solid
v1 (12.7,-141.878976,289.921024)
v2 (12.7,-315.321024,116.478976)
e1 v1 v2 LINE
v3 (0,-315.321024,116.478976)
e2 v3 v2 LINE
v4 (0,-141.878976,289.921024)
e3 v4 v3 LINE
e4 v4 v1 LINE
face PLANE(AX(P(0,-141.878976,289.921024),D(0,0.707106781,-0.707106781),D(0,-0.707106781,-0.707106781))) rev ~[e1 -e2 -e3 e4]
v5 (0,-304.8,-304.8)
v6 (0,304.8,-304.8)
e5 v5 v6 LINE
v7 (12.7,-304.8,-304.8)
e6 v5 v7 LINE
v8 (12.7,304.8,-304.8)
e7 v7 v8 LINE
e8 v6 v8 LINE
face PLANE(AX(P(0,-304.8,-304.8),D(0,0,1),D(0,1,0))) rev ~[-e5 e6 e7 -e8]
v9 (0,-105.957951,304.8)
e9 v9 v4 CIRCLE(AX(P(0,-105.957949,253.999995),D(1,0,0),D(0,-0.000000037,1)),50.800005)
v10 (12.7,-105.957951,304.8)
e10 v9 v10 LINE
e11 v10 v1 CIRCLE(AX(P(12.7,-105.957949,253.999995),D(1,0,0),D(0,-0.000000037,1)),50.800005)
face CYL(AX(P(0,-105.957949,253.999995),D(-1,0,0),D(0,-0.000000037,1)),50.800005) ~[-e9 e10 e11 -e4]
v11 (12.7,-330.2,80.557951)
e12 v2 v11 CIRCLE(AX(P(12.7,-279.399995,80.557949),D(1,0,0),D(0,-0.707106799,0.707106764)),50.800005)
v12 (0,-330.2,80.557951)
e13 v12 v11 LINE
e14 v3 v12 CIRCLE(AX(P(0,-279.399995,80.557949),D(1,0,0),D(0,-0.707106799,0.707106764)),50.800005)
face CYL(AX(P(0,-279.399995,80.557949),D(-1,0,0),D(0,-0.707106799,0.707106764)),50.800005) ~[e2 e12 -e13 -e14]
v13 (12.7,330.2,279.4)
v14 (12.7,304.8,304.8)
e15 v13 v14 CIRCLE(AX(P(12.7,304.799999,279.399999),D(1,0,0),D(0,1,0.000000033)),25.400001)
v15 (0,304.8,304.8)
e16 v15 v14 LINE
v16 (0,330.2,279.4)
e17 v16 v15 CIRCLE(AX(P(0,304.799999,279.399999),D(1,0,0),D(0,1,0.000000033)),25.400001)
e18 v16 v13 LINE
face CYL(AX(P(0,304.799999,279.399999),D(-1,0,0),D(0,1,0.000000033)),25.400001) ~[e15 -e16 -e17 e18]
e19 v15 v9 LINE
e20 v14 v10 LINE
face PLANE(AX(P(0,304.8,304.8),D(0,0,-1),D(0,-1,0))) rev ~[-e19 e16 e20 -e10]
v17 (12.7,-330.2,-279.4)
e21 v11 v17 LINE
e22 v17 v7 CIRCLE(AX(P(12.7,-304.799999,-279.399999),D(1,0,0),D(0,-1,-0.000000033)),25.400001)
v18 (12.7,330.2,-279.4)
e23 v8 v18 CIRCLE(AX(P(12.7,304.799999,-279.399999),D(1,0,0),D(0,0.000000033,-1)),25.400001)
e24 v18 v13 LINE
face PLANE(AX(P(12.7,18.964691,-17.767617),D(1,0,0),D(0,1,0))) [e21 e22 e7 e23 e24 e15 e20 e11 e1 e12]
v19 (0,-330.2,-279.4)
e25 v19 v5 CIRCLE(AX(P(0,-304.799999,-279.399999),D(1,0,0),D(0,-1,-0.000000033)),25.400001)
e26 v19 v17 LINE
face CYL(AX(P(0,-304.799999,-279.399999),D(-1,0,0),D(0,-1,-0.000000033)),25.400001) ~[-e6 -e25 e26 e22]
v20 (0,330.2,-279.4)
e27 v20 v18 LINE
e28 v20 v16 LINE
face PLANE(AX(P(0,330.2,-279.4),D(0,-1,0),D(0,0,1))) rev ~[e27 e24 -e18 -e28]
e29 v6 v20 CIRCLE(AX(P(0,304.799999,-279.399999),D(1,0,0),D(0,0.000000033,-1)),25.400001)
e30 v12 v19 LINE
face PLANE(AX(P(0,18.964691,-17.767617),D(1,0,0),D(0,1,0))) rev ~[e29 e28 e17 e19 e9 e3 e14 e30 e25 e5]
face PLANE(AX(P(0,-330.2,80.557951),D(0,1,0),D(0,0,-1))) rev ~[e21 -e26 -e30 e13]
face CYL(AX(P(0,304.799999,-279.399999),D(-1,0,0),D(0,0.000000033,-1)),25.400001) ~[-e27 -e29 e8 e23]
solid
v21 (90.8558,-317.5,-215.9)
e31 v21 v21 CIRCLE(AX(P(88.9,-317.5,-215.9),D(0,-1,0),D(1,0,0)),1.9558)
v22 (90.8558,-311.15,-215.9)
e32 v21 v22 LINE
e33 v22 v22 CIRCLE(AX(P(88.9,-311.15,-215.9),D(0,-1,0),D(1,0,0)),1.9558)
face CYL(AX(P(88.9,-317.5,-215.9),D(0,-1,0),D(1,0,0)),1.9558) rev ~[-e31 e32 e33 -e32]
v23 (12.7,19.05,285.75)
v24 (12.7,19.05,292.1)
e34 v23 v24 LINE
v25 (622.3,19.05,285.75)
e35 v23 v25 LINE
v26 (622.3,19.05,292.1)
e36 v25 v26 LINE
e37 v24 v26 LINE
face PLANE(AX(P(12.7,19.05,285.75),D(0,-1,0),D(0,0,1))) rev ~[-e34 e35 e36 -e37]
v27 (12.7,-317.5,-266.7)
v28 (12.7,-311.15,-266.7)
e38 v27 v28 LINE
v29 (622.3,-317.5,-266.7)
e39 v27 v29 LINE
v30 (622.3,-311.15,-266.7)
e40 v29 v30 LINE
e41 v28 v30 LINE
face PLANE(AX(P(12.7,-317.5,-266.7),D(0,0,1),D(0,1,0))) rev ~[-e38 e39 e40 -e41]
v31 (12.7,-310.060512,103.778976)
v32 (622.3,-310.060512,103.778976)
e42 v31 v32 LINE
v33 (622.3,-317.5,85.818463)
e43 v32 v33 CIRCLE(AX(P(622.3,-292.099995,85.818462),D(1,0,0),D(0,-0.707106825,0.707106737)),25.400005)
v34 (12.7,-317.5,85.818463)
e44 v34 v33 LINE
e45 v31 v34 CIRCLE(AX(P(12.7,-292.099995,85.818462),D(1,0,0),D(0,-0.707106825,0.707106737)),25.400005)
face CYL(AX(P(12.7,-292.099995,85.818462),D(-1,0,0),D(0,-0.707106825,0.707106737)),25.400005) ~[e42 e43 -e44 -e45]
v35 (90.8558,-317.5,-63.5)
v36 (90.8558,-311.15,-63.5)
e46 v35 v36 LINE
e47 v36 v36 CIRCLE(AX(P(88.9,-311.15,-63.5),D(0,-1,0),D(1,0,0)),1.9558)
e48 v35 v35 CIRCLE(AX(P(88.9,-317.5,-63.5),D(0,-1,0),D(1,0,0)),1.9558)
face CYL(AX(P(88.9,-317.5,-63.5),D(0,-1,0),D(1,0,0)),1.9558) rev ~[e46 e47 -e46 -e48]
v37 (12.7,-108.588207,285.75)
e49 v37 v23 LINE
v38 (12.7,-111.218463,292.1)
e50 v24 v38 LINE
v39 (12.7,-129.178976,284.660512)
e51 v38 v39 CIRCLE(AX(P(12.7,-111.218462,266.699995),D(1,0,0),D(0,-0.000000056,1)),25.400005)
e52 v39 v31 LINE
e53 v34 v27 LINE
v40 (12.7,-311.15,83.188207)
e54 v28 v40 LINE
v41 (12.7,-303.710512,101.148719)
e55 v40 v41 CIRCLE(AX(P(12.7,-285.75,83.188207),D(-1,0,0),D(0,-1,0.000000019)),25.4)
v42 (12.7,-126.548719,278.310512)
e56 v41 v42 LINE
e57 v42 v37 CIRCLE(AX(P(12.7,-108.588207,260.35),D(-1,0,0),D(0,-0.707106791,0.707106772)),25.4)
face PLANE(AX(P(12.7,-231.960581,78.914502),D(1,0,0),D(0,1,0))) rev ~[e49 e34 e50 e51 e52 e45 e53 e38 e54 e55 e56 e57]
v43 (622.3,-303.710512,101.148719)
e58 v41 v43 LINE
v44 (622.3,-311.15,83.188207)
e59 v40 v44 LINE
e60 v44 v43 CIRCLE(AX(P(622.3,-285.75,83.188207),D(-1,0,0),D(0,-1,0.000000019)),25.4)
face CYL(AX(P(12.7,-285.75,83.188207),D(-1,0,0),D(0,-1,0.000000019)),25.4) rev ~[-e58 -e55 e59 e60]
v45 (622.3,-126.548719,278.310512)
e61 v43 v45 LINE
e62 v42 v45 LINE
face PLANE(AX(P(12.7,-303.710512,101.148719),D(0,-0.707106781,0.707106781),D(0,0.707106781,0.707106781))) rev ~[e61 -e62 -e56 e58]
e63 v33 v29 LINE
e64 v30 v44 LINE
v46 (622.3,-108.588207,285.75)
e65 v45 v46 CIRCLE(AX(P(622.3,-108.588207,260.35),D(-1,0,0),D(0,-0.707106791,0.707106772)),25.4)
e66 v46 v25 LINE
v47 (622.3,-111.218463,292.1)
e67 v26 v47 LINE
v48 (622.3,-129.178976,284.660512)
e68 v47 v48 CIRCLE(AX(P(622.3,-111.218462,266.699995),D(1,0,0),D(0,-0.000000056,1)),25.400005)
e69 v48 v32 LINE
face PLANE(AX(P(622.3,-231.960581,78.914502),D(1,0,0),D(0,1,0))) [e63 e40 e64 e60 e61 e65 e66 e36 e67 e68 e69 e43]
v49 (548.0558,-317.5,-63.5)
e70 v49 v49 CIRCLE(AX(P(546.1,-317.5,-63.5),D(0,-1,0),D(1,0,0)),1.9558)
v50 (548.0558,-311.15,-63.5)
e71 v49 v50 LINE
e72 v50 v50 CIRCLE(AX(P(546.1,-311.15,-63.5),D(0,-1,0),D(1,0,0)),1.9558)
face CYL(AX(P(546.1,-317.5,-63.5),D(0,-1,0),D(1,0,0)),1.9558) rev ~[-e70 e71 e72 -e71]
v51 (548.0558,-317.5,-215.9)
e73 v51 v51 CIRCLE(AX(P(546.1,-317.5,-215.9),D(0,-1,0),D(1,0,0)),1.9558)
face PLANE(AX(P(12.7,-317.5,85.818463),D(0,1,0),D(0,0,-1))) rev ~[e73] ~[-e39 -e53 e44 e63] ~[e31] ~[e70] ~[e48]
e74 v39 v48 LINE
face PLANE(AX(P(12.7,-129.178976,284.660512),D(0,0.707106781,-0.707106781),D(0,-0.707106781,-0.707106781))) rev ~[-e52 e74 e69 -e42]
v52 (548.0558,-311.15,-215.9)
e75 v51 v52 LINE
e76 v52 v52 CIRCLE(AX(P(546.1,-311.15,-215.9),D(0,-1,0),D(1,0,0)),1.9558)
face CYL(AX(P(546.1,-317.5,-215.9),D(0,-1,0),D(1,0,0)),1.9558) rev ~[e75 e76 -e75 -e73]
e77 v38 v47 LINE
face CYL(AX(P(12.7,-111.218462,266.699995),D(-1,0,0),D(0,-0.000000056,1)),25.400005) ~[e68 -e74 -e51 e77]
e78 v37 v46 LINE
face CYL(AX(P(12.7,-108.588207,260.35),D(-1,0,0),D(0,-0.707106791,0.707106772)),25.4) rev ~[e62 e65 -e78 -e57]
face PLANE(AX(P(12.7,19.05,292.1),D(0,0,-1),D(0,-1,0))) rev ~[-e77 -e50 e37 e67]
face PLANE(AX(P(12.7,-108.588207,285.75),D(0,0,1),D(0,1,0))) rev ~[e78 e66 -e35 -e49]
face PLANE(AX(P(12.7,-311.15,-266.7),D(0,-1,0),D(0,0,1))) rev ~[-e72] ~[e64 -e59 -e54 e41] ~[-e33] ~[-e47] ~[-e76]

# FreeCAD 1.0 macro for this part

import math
import FreeCAD as App
import Part
import Sketcher
Q = App.Units.Quantity

doc = App.newDocument("Part")
params = doc.addObject("Spreadsheet::Sheet", "Params")
for row, (alias, value) in enumerate([
    ("sketch1_radius", "1 in"),
    ("sketch1_radius2", "2.0000002 in"),
    ("sketch1_width", "24 in"),
    ("sketch1_height", "22 in"),
    ("pad1_length", "0.5 in"),
    ("sketch2_radius", "1.0000002 in"),
    ("sketch2_radius2", "1 in"),
    ("sketch2_width", "0.25 in"),
    ("pad2_length", "24 in"),
    ("sketch3_diameter", "0.154 in"),
], start=1):
    params.set(f"A{row}", alias)
    params.set(f"B{row}", "=" + value)
    params.setAlias(f"B{row}", alias)

body = doc.addObject("PartDesign::Body", "Body")

# Sketch on YZ plane
sketch1 = body.newObject("Sketcher::SketchObject", "Sketch")
sketch1.AttachmentSupport = (doc.getObject("YZ_Plane"), [""])
sketch1.MapMode = "FlatFace"
sketch1.addGeometry(Part.ArcOfCircle(Part.Circle(App.Vector(305, 279, 0), App.Vector(0, 0, 1), 25), math.radians(0), math.radians(90)), False)
sketch1.addGeometry(Part.LineSegment(App.Vector(305, 305, 0), App.Vector(-106, 305, 0)), False)
sketch1.addGeometry(Part.ArcOfCircle(Part.Circle(App.Vector(-106, 254, 0), App.Vector(0, 0, 1), 51), math.radians(90), math.radians(135)), False)
sketch1.addGeometry(Part.LineSegment(App.Vector(-142, 290, 0), App.Vector(-315, 116, 0)), False)
sketch1.addGeometry(Part.ArcOfCircle(Part.Circle(App.Vector(-279, 81, 0), App.Vector(0, 0, 1), 51), math.radians(135), math.radians(180)), False)
sketch1.addGeometry(Part.LineSegment(App.Vector(-330, 81, 0), App.Vector(-330, -279, 0)), False)
sketch1.addGeometry(Part.ArcOfCircle(Part.Circle(App.Vector(-305, -279, 0), App.Vector(0, 0, 1), 25), math.radians(-180), math.radians(-90)), False)
sketch1.addGeometry(Part.LineSegment(App.Vector(-305, -305, 0), App.Vector(305, -305, 0)), False)
sketch1.addGeometry(Part.ArcOfCircle(Part.Circle(App.Vector(305, -279, 0), App.Vector(0, 0, 1), 25), math.radians(-90), math.radians(0)), False)
sketch1.addGeometry(Part.LineSegment(App.Vector(330, -279, 0), App.Vector(330, 279, 0)), False)
sketch1.addConstraint(Sketcher.Constraint("Tangent", 0, 2, 1, 1))
sketch1.addConstraint(Sketcher.Constraint("Tangent", 1, 2, 2, 1))
sketch1.addConstraint(Sketcher.Constraint("Tangent", 2, 2, 3, 1))
sketch1.addConstraint(Sketcher.Constraint("Tangent", 3, 2, 4, 1))
sketch1.addConstraint(Sketcher.Constraint("Tangent", 4, 2, 5, 1))
sketch1.addConstraint(Sketcher.Constraint("Tangent", 5, 2, 6, 1))
sketch1.addConstraint(Sketcher.Constraint("Tangent", 6, 2, 7, 1))
sketch1.addConstraint(Sketcher.Constraint("Tangent", 7, 2, 8, 1))
sketch1.addConstraint(Sketcher.Constraint("Tangent", 8, 2, 9, 1))
sketch1.addConstraint(Sketcher.Constraint("Tangent", 9, 2, 0, 1))
sketch1.addConstraint(Sketcher.Constraint("Horizontal", 1))
sketch1.addConstraint(Sketcher.Constraint("Vertical", 5))
sketch1.addConstraint(Sketcher.Constraint("Horizontal", 7))
sketch1.addConstraint(Sketcher.Constraint("Vertical", 9))
sketch1.addConstraint(Sketcher.Constraint("Equal", 2, 4))
sketch1.addConstraint(Sketcher.Constraint("Equal", 0, 6))
sketch1.addConstraint(Sketcher.Constraint("Equal", 6, 8))
sketch1.addConstraint(Sketcher.Constraint("Symmetric", 0, 3, 6, 3, -1, 1))
sketch1.addConstraint(Sketcher.Constraint("Radius", 0, Q("1 in")))
sketch1.addConstraint(Sketcher.Constraint("Radius", 2, Q("2.0000002 in")))
sketch1.addConstraint(Sketcher.Constraint("DistanceX", 7, 1, 7, 2, Q("24 in")))
sketch1.addConstraint(Sketcher.Constraint("DistanceY", 9, 1, 9, 2, Q("22 in")))
sketch1.addConstraint(Sketcher.Constraint("Angle", 3, Q("-135 deg")))
sketch1.addConstraint(Sketcher.Constraint("DistanceX", 1, 2, 1, 1, 410.757951))
sketch1.setExpression("Constraints[18]", "Params.sketch1_radius")
sketch1.setExpression("Constraints[19]", "Params.sketch1_radius2")
sketch1.setExpression("Constraints[20]", "Params.sketch1_width")
sketch1.setExpression("Constraints[21]", "Params.sketch1_height")
pad1 = body.newObject("PartDesign::Pad", "Pad")
pad1.Profile = sketch1
pad1.setExpression("Length", "Params.pad1_length")
body2 = doc.addObject("PartDesign::Body", "Body001")

# Sketch on YZ plane
sketch2 = body2.newObject("Sketcher::SketchObject", "Sketch001")
sketch2.AttachmentSupport = (doc.getObject("YZ_Plane001"), [""])
sketch2.MapMode = "FlatFace"
sketch2.AttachmentOffset = App.Placement(App.Vector(0, 0, 0.5 * 25.4), App.Rotation())
sketch2.addGeometry(Part.ArcOfCircle(Part.Circle(App.Vector(-292, 86, 0), App.Vector(0, 0, 1), 25), math.radians(135), math.radians(180)), False)
sketch2.addGeometry(Part.LineSegment(App.Vector(-318, 86, 0), App.Vector(-318, -267, 0)), False)
sketch2.addGeometry(Part.LineSegment(App.Vector(-318, -267, 0), App.Vector(-311, -267, 0)), False)
sketch2.addGeometry(Part.LineSegment(App.Vector(-311, -267, 0), App.Vector(-311, 83, 0)), False)
sketch2.addGeometry(Part.ArcOfCircle(Part.Circle(App.Vector(-286, 83, 0), App.Vector(0, 0, 1), 25), math.radians(135), math.radians(180)), False)
sketch2.addGeometry(Part.LineSegment(App.Vector(-304, 101, 0), App.Vector(-127, 278, 0)), False)
sketch2.addGeometry(Part.ArcOfCircle(Part.Circle(App.Vector(-109, 260, 0), App.Vector(0, 0, 1), 25), math.radians(90), math.radians(135)), False)
sketch2.addGeometry(Part.LineSegment(App.Vector(-109, 286, 0), App.Vector(19, 286, 0)), False)
sketch2.addGeometry(Part.LineSegment(App.Vector(19, 286, 0), App.Vector(19, 292, 0)), False)
sketch2.addGeometry(Part.LineSegment(App.Vector(19, 292, 0), App.Vector(-111, 292, 0)), False)
sketch2.addGeometry(Part.ArcOfCircle(Part.Circle(App.Vector(-111, 267, 0), App.Vector(0, 0, 1), 25), math.radians(90), math.radians(135)), False)
sketch2.addGeometry(Part.LineSegment(App.Vector(-129, 285, 0), App.Vector(-310, 104, 0)), False)
sketch2.addConstraint(Sketcher.Constraint("Tangent", 0, 2, 1, 1))
sketch2.addConstraint(Sketcher.Constraint("Coincident", 1, 2, 2, 1))
sketch2.addConstraint(Sketcher.Constraint("Coincident", 2, 2, 3, 1))
sketch2.addConstraint(Sketcher.Constraint("Tangent", 3, 2, 4, 2))
sketch2.addConstraint(Sketcher.Constraint("Tangent", 4, 1, 5, 1))
sketch2.addConstraint(Sketcher.Constraint("Tangent", 5, 2, 6, 2))
sketch2.addConstraint(Sketcher.Constraint("Tangent", 6, 1, 7, 1))
sketch2.addConstraint(Sketcher.Constraint("Coincident", 7, 2, 8, 1))
sketch2.addConstraint(Sketcher.Constraint("Coincident", 8, 2, 9, 1))
sketch2.addConstraint(Sketcher.Constraint("Tangent", 9, 2, 10, 1))
sketch2.addConstraint(Sketcher.Constraint("Tangent", 10, 2, 11, 1))
sketch2.addConstraint(Sketcher.Constraint("Tangent", 11, 2, 0, 1))
sketch2.addConstraint(Sketcher.Constraint("Vertical", 1))
sketch2.addConstraint(Sketcher.Constraint("Horizontal", 2))
sketch2.addConstraint(Sketcher.Constraint("Vertical", 3))
sketch2.addConstraint(Sketcher.Constraint("Horizontal", 7))
sketch2.addConstraint(Sketcher.Constraint("Vertical", 8))
sketch2.addConstraint(Sketcher.Constraint("Horizontal", 9))
sketch2.addConstraint(Sketcher.Constraint("Equal", 4, 6))
sketch2.addConstraint(Sketcher.Constraint("Equal", 0, 10))
sketch2.addConstraint(Sketcher.Constraint("Parallel", 5, 11))
sketch2.addConstraint(Sketcher.Constraint("Equal", 2, 8))
sketch2.addConstraint(Sketcher.Constraint("Radius", 0, Q("1.0000002 in")))
sketch2.addConstraint(Sketcher.Constraint("Radius", 4, Q("1 in")))
sketch2.addConstraint(Sketcher.Constraint("Angle", 5, Q("45 deg")))
sketch2.addConstraint(Sketcher.Constraint("DistanceY", 1, 2, 10, 3, Q("20.9999998 in")))
sketch2.addConstraint(Sketcher.Constraint("DistanceX", 4, 3, 7, 2, Q("12 in")))
sketch2.addConstraint(Sketcher.Constraint("DistanceX", 2, 1, 2, 2, Q("0.25 in")))
sketch2.addConstraint(Sketcher.Constraint("DistanceX", 0, 3, -1, 1, Q("11.4999998 in")))
sketch2.addConstraint(Sketcher.Constraint("DistanceY", -1, 1, 10, 3, Q("10.4999998 in")))
sketch2.addConstraint(Sketcher.Constraint("Distance", 5, 250.54461))
sketch2.addConstraint(Sketcher.Constraint("Distance", 11, 255.805121))
sketch2.setExpression("Constraints[22]", "Params.sketch2_radius")
sketch2.setExpression("Constraints[23]", "Params.sketch2_radius2")
sketch2.setExpression("Constraints[27]", "Params.sketch2_width")
pad2 = body2.newObject("PartDesign::Pad", "Pad001")
pad2.Profile = sketch2
pad2.setExpression("Length", "Params.pad2_length")

# Sketch on XZ plane
sketch3 = body2.newObject("Sketcher::SketchObject", "Sketch002")
sketch3.AttachmentSupport = (doc.getObject("XZ_Plane001"), [""])
sketch3.MapMode = "FlatFace"
sketch3.AttachmentOffset = App.Placement(App.Vector(0, 0, 12.5 * 25.4), App.Rotation())
sketch3.addGeometry(Part.Circle(App.Vector(546.1, -215.9, 0), App.Vector(0, 0, 1), 2), False)
sketch3.addGeometry(Part.Circle(App.Vector(546.1, -63.5, 0), App.Vector(0, 0, 1), 2), False)
sketch3.addGeometry(Part.Circle(App.Vector(88.9, -63.5, 0), App.Vector(0, 0, 1), 2), False)
sketch3.addGeometry(Part.Circle(App.Vector(88.9, -215.9, 0), App.Vector(0, 0, 1), 2), False)
sketch3.addConstraint(Sketcher.Constraint("Equal", 0, 1))
sketch3.addConstraint(Sketcher.Constraint("Equal", 1, 2))
sketch3.addConstraint(Sketcher.Constraint("Equal", 2, 3))
sketch3.addConstraint(Sketcher.Constraint("Horizontal", 1, 3, 2, 3))
sketch3.addConstraint(Sketcher.Constraint("Horizontal", 0, 3, 3, 3))
sketch3.addConstraint(Sketcher.Constraint("Vertical", 0, 3, 1, 3))
sketch3.addConstraint(Sketcher.Constraint("Vertical", 2, 3, 3, 3))
sketch3.addConstraint(Sketcher.Constraint("Diameter", 0, Q("0.154 in")))
sketch3.addConstraint(Sketcher.Constraint("DistanceY", 0, 3, 1, 3, Q("6 in")))
sketch3.addConstraint(Sketcher.Constraint("DistanceX", 2, 3, 1, 3, Q("18 in")))
sketch3.addConstraint(Sketcher.Constraint("DistanceX", -1, 1, 0, 3, Q("21.5 in")))
sketch3.addConstraint(Sketcher.Constraint("DistanceY", 0, 3, -1, 1, Q("8.5 in")))
sketch3.setExpression("Constraints[7]", "Params.sketch3_diameter")
pocket1 = body2.newObject("PartDesign::Pocket", "Pocket")
pocket1.Profile = sketch3
pocket1.Type = "ThroughAll"

doc.recompute()
